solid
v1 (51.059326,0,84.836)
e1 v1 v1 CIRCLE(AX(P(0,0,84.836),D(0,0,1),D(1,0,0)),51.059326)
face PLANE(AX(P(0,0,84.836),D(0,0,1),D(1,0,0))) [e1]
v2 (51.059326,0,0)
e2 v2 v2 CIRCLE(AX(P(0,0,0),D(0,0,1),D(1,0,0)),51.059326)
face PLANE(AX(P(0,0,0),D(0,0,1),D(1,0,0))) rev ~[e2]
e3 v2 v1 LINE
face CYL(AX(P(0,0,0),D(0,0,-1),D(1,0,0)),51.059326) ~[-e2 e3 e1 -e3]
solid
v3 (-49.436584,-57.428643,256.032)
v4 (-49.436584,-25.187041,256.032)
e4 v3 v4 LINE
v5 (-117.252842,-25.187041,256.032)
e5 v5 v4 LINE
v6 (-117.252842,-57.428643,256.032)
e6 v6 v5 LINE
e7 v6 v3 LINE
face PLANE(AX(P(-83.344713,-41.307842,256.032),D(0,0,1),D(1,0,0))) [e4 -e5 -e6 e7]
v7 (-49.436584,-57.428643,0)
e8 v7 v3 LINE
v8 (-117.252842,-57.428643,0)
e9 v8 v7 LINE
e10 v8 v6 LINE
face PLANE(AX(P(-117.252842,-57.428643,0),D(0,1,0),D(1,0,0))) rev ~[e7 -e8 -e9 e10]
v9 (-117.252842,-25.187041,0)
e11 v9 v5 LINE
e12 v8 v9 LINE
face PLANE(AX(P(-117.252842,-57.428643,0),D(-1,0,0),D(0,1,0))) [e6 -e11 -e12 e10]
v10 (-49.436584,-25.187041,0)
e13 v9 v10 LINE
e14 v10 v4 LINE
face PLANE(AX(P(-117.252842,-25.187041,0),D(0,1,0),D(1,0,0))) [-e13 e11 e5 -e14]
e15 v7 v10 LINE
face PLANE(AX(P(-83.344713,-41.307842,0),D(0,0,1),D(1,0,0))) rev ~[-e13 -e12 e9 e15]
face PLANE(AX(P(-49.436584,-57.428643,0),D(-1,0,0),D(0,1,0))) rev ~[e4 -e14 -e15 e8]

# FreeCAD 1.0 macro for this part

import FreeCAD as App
import Part
import Sketcher
from FreeCAD import Vector
Q = App.Units.Quantity


def add_polygon(sketch, points):
    """Adds a closed chain of lines whose ends are joined by coincident constraints."""
    first, n = sketch.GeometryCount, len(points)
    for a, b in zip(points, points[1:] + points[:1]):
        sketch.addGeometry(Part.LineSegment(App.Vector(*a, 0), App.Vector(*b, 0)), False)
    for i in range(n):
        sketch.addConstraint(Sketcher.Constraint("Coincident", first + i, 2, first + (i + 1) % n, 1))

doc = App.newDocument("Part")
body = doc.addObject("PartDesign::Body", "Body")

# Sketch on XY plane
sketch1 = body.newObject("Sketcher::SketchObject", "Sketch")
sketch1.AttachmentSupport = (doc.getObject("XY_Plane"), [""])
sketch1.MapMode = "FlatFace"
sketch1.addGeometry(Part.Circle(Vector(0, 0, 0), Vector(0, 0, 1), 51), False)
sketch1.addConstraint(Sketcher.Constraint("Coincident", 0, 3, -1, 1))
sketch1.addConstraint(Sketcher.Constraint("Diameter", 0, Q("102.118652 mm")))
pad1 = body.newObject("PartDesign::Pad", "Pad")
pad1.Profile = sketch1
pad1.Length = Q("3.34 in")
body2 = doc.addObject("PartDesign::Body", "Body001")

# Sketch on XY plane
sketch2 = body2.newObject("Sketcher::SketchObject", "Sketch001")
sketch2.AttachmentSupport = (doc.getObject("XY_Plane001"), [""])
sketch2.MapMode = "FlatFace"
add_polygon(sketch2, [(-117, -25), (-117, -57), (-49, -57), (-49, -25)])  # lines 0-3
sketch2.addConstraint(Sketcher.Constraint("Vertical", 0))
sketch2.addConstraint(Sketcher.Constraint("Horizontal", 1))
sketch2.addConstraint(Sketcher.Constraint("Vertical", 2))
sketch2.addConstraint(Sketcher.Constraint("Horizontal", 3))
sketch2.addConstraint(Sketcher.Constraint("DistanceY", 0, 2, 0, 1, Q("32.241601 mm")))
sketch2.addConstraint(Sketcher.Constraint("DistanceX", 1, 1, 1, 2, Q("67.816258 mm")))
sketch2.addConstraint(Sketcher.Constraint("DistanceX", 0, 2, -1, 1, Q("117.252842 mm")))
sketch2.addConstraint(Sketcher.Constraint("DistanceY", 2, 2, -1, 1, Q("25.187041 mm")))
pad2 = body2.newObject("PartDesign::Pad", "Pad001")
pad2.Profile = sketch2
pad2.Length = Q("10.08 in")

doc.recompute()
